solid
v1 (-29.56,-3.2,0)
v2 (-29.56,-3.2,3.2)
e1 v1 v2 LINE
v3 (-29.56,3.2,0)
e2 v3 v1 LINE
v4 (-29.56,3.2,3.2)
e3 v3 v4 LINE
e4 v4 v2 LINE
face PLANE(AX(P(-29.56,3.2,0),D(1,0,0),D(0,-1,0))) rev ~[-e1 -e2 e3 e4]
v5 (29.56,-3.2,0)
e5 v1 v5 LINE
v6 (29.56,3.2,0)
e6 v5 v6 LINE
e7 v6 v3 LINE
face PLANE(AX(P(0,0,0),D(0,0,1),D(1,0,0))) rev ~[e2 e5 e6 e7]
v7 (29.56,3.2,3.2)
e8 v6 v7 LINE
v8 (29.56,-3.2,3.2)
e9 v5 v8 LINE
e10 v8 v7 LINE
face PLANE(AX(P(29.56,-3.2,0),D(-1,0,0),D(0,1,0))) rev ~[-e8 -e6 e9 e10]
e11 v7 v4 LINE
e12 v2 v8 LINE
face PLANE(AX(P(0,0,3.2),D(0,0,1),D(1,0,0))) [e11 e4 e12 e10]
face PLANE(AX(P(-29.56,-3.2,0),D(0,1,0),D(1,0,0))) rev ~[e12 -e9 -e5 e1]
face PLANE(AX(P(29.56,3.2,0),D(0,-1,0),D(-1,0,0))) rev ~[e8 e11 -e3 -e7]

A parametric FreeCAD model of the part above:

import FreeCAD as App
import Part
import Sketcher
from FreeCAD import Vector


def add_polygon(sketch, points):
    """Adds a closed chain of lines whose ends are joined by coincident constraints."""
    first, n = sketch.GeometryCount, len(points)
    for a, b in zip(points, points[1:] + points[:1]):
        sketch.addGeometry(Part.LineSegment(App.Vector(*a, 0), App.Vector(*b, 0)), False)
    for i in range(n):
        sketch.addConstraint(Sketcher.Constraint("Coincident", first + i, 2, first + (i + 1) % n, 1))

doc = App.newDocument("Part")
body = doc.addObject("PartDesign::Body", "Body")

# Sketch on XY plane
sketch1 = body.newObject("Sketcher::SketchObject", "Sketch")
sketch1.AttachmentSupport = (doc.getObject("XY_Plane"), [""])
sketch1.MapMode = "FlatFace"
add_polygon(sketch1, [(-30, 3), (-30, -3), (30, -3), (30, 3)])  # lines 0-3
sketch1.addConstraint([
    Sketcher.Constraint("Vertical", 0),
    Sketcher.Constraint("Horizontal", 1),
    Sketcher.Constraint("Vertical", 2),
    Sketcher.Constraint("Horizontal", 3),
    Sketcher.Constraint("Symmetric", 0, 2, 2, 2, -1, 1),
    Sketcher.Constraint("DistanceY", 0, 2, 0, 1, 6.4),
    Sketcher.Constraint("DistanceX", 1, 1, 1, 2, 59.12),
])
pad1 = body.newObject("PartDesign::Pad", "Pad")
pad1.Profile = sketch1
pad1.Length = 3.2

doc.recompute()
